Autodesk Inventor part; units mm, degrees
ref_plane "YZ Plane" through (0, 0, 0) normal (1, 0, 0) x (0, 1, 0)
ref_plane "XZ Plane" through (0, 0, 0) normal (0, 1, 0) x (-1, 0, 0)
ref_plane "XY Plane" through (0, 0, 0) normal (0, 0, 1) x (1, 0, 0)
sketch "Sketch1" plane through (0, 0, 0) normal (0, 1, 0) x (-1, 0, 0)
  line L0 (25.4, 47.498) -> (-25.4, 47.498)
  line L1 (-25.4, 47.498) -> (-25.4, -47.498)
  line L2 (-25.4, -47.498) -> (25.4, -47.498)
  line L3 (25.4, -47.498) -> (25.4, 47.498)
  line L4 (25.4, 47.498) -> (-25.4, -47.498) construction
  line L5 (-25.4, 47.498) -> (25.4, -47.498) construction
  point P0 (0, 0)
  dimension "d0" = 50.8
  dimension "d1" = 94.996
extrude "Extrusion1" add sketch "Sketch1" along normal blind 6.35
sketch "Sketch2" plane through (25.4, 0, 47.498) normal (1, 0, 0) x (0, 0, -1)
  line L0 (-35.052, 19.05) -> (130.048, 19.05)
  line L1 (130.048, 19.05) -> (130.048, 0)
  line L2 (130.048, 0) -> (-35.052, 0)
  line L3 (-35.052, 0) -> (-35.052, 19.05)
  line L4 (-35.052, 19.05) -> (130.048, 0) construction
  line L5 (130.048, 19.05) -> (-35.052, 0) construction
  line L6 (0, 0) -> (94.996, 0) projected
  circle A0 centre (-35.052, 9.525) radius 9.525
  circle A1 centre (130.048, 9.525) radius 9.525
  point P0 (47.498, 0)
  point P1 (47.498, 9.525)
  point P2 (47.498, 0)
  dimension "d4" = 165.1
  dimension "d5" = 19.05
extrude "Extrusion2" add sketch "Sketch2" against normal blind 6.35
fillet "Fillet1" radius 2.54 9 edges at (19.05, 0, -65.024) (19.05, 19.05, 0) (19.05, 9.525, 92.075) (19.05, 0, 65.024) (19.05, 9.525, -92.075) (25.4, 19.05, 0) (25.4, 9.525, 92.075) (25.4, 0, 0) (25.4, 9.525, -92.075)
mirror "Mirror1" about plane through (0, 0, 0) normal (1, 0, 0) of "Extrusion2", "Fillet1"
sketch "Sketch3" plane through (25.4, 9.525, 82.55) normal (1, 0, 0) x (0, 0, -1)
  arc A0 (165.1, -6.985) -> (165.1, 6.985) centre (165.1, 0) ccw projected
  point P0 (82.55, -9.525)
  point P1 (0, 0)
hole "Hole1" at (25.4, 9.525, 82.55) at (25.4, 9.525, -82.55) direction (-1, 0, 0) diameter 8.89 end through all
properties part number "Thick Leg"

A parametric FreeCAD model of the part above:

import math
import FreeCAD as App
import Part
import Sketcher
Q = App.Units.Quantity


def edges_at(feature, points):
    """Names of the edges that pass closest to the given points."""
    edges = feature.Shape.Edges
    near = lambda p: min(range(len(edges)), key=lambda i: edges[i].distToShape(Part.Vertex(*p))[0])
    return sorted({f"Edge{near(p) + 1}" for p in points})


def add_polygon(sketch, points):
    """Adds a closed chain of lines whose ends are joined by coincident constraints."""
    first, n = sketch.GeometryCount, len(points)
    for a, b in zip(points, points[1:] + points[:1]):
        sketch.addGeometry(Part.LineSegment(App.Vector(*a, 0), App.Vector(*b, 0)), False)
    for i in range(n):
        sketch.addConstraint(Sketcher.Constraint("Coincident", first + i, 2, first + (i + 1) % n, 1))

doc = App.newDocument("Part")
body = doc.addObject("PartDesign::Body", "Body")

sketch1 = body.newObject("Sketcher::SketchObject", "Sketch")
sketch1.AttachmentSupport = (doc.getObject("XZ_Plane"), [""])
sketch1.MapMode = "FlatFace"
add_polygon(sketch1, [(-25, -47), (-25, 47), (25, 47), (25, -47)])
sketch1.addConstraint([
    Sketcher.Constraint("Vertical", 0),
    Sketcher.Constraint("Horizontal", 1),
    Sketcher.Constraint("Vertical", 2),
    Sketcher.Constraint("Horizontal", 3),
    Sketcher.Constraint("Symmetric", 0, 2, 2, 2, -1, 1),
    Sketcher.Constraint("DistanceX", 1, 1, 1, 2, Q("2 in")),
    Sketcher.Constraint("DistanceY", 0, 1, 0, 2, Q("3.74 in")),
])
pad1 = body.newObject("PartDesign::Pad", "Pad")
pad1.Profile = sketch1
pad1.Length = Q("0.25 in")
pad1.Reversed = True

sketch2 = body.newObject("Sketcher::SketchObject", "Sketch001")
sketch2.AttachmentSupport = (doc.getObject("YZ_Plane"), [""])
sketch2.MapMode = "FlatFace"
sketch2.AttachmentOffset = App.Placement(App.Vector(0, 0, 1 * 25.4), App.Rotation())
sketch2.addGeometry([
    Part.LineSegment(App.Vector(19, -83, 0), App.Vector(19, 83, 0)),
    Part.ArcOfCircle(Part.Circle(App.Vector(10, 83, 0), App.Vector(0, 0, 1), 10), math.radians(0), math.radians(180)),
    Part.LineSegment(App.Vector(0, 83, 0), App.Vector(0, -83, 0)),
    Part.ArcOfCircle(Part.Circle(App.Vector(10, -83, 0), App.Vector(0, 0, 1), 10), math.radians(180), math.radians(360)),
], False)
sketch2.addConstraint([
    Sketcher.Constraint("Tangent", 0, 2, 1, 1),
    Sketcher.Constraint("Tangent", 1, 2, 2, 1),
    Sketcher.Constraint("Tangent", 2, 2, 3, 1),
    Sketcher.Constraint("Tangent", 3, 2, 0, 1),
    Sketcher.Constraint("Vertical", 0),
    Sketcher.Constraint("Vertical", 2),
    Sketcher.Constraint("Symmetric", 1, 2, 2, 2, -1, 1),
    Sketcher.Constraint("DistanceY", 0, 1, 0, 2, Q("6.5 in")),
    Sketcher.Constraint("Radius", 1, Q("0.375 in")),
])
pad2 = body.newObject("PartDesign::Pad", "Pad001")
pad2.Profile = sketch2
pad2.Length = Q("0.25 in")
pad2.Reversed = True
doc.recompute()

fillet = body.newObject("PartDesign::Fillet", "Fillet")
fillet.Base = (pad2, edges_at(pad2, [
    (19.05, 0, -65.024),
    (19.05, 19.05, 0),
    (19.05, 9.525, 92.075),
    (19.05, 0, 65.024),
    (19.05, 9.525, -92.075),
    (25.4, 19.05, 0),
    (25.4, 9.525, 92.075),
    (25.4, 0, 0),
    (25.4, 9.525, -92.075),
]))
fillet.Radius = Q("0.1 in")
doc.recompute()

mirrored = body.newObject("PartDesign::Mirrored", "Mirrored")
mirrored.Originals = [pad2, fillet]
mirrored.MirrorPlane = (doc.getObject("YZ_Plane"), [""])
body.Tip = mirrored

sketch3 = body.newObject("Sketcher::SketchObject", "Sketch002")
sketch3.AttachmentSupport = (doc.getObject("YZ_Plane"), [""])
sketch3.MapMode = "FlatFace"
sketch3.AttachmentOffset = App.Placement(App.Vector(0, 0, 1 * 25.4), App.Rotation())
sketch3.addGeometry([
    Part.Circle(App.Vector(9.5, 82.5, 0), App.Vector(0, 0, 1), 4.4),
    Part.Circle(App.Vector(9.5, -82.5, 0), App.Vector(0, 0, 1), 4.4),
], False)
sketch3.addConstraint([
    Sketcher.Constraint("Equal", 0, 1),
    Sketcher.Constraint("Symmetric", 0, 3, 1, 3, -1),
    Sketcher.Constraint("Diameter", 0, Q("0.35 in")),
    Sketcher.Constraint("DistanceY", 1, 3, 0, 3, Q("6.5 in")),
    Sketcher.Constraint("DistanceX", -1, 1, 0, 3, Q("0.375 in")),
])
doc.recompute()
hole = body.newObject("PartDesign::Hole", "Hole")
hole.Profile = sketch3
hole.ThreadType = "None"
hole.Diameter = Q("0.35 in")
hole.DepthType = "ThroughAll"

doc.recompute()
